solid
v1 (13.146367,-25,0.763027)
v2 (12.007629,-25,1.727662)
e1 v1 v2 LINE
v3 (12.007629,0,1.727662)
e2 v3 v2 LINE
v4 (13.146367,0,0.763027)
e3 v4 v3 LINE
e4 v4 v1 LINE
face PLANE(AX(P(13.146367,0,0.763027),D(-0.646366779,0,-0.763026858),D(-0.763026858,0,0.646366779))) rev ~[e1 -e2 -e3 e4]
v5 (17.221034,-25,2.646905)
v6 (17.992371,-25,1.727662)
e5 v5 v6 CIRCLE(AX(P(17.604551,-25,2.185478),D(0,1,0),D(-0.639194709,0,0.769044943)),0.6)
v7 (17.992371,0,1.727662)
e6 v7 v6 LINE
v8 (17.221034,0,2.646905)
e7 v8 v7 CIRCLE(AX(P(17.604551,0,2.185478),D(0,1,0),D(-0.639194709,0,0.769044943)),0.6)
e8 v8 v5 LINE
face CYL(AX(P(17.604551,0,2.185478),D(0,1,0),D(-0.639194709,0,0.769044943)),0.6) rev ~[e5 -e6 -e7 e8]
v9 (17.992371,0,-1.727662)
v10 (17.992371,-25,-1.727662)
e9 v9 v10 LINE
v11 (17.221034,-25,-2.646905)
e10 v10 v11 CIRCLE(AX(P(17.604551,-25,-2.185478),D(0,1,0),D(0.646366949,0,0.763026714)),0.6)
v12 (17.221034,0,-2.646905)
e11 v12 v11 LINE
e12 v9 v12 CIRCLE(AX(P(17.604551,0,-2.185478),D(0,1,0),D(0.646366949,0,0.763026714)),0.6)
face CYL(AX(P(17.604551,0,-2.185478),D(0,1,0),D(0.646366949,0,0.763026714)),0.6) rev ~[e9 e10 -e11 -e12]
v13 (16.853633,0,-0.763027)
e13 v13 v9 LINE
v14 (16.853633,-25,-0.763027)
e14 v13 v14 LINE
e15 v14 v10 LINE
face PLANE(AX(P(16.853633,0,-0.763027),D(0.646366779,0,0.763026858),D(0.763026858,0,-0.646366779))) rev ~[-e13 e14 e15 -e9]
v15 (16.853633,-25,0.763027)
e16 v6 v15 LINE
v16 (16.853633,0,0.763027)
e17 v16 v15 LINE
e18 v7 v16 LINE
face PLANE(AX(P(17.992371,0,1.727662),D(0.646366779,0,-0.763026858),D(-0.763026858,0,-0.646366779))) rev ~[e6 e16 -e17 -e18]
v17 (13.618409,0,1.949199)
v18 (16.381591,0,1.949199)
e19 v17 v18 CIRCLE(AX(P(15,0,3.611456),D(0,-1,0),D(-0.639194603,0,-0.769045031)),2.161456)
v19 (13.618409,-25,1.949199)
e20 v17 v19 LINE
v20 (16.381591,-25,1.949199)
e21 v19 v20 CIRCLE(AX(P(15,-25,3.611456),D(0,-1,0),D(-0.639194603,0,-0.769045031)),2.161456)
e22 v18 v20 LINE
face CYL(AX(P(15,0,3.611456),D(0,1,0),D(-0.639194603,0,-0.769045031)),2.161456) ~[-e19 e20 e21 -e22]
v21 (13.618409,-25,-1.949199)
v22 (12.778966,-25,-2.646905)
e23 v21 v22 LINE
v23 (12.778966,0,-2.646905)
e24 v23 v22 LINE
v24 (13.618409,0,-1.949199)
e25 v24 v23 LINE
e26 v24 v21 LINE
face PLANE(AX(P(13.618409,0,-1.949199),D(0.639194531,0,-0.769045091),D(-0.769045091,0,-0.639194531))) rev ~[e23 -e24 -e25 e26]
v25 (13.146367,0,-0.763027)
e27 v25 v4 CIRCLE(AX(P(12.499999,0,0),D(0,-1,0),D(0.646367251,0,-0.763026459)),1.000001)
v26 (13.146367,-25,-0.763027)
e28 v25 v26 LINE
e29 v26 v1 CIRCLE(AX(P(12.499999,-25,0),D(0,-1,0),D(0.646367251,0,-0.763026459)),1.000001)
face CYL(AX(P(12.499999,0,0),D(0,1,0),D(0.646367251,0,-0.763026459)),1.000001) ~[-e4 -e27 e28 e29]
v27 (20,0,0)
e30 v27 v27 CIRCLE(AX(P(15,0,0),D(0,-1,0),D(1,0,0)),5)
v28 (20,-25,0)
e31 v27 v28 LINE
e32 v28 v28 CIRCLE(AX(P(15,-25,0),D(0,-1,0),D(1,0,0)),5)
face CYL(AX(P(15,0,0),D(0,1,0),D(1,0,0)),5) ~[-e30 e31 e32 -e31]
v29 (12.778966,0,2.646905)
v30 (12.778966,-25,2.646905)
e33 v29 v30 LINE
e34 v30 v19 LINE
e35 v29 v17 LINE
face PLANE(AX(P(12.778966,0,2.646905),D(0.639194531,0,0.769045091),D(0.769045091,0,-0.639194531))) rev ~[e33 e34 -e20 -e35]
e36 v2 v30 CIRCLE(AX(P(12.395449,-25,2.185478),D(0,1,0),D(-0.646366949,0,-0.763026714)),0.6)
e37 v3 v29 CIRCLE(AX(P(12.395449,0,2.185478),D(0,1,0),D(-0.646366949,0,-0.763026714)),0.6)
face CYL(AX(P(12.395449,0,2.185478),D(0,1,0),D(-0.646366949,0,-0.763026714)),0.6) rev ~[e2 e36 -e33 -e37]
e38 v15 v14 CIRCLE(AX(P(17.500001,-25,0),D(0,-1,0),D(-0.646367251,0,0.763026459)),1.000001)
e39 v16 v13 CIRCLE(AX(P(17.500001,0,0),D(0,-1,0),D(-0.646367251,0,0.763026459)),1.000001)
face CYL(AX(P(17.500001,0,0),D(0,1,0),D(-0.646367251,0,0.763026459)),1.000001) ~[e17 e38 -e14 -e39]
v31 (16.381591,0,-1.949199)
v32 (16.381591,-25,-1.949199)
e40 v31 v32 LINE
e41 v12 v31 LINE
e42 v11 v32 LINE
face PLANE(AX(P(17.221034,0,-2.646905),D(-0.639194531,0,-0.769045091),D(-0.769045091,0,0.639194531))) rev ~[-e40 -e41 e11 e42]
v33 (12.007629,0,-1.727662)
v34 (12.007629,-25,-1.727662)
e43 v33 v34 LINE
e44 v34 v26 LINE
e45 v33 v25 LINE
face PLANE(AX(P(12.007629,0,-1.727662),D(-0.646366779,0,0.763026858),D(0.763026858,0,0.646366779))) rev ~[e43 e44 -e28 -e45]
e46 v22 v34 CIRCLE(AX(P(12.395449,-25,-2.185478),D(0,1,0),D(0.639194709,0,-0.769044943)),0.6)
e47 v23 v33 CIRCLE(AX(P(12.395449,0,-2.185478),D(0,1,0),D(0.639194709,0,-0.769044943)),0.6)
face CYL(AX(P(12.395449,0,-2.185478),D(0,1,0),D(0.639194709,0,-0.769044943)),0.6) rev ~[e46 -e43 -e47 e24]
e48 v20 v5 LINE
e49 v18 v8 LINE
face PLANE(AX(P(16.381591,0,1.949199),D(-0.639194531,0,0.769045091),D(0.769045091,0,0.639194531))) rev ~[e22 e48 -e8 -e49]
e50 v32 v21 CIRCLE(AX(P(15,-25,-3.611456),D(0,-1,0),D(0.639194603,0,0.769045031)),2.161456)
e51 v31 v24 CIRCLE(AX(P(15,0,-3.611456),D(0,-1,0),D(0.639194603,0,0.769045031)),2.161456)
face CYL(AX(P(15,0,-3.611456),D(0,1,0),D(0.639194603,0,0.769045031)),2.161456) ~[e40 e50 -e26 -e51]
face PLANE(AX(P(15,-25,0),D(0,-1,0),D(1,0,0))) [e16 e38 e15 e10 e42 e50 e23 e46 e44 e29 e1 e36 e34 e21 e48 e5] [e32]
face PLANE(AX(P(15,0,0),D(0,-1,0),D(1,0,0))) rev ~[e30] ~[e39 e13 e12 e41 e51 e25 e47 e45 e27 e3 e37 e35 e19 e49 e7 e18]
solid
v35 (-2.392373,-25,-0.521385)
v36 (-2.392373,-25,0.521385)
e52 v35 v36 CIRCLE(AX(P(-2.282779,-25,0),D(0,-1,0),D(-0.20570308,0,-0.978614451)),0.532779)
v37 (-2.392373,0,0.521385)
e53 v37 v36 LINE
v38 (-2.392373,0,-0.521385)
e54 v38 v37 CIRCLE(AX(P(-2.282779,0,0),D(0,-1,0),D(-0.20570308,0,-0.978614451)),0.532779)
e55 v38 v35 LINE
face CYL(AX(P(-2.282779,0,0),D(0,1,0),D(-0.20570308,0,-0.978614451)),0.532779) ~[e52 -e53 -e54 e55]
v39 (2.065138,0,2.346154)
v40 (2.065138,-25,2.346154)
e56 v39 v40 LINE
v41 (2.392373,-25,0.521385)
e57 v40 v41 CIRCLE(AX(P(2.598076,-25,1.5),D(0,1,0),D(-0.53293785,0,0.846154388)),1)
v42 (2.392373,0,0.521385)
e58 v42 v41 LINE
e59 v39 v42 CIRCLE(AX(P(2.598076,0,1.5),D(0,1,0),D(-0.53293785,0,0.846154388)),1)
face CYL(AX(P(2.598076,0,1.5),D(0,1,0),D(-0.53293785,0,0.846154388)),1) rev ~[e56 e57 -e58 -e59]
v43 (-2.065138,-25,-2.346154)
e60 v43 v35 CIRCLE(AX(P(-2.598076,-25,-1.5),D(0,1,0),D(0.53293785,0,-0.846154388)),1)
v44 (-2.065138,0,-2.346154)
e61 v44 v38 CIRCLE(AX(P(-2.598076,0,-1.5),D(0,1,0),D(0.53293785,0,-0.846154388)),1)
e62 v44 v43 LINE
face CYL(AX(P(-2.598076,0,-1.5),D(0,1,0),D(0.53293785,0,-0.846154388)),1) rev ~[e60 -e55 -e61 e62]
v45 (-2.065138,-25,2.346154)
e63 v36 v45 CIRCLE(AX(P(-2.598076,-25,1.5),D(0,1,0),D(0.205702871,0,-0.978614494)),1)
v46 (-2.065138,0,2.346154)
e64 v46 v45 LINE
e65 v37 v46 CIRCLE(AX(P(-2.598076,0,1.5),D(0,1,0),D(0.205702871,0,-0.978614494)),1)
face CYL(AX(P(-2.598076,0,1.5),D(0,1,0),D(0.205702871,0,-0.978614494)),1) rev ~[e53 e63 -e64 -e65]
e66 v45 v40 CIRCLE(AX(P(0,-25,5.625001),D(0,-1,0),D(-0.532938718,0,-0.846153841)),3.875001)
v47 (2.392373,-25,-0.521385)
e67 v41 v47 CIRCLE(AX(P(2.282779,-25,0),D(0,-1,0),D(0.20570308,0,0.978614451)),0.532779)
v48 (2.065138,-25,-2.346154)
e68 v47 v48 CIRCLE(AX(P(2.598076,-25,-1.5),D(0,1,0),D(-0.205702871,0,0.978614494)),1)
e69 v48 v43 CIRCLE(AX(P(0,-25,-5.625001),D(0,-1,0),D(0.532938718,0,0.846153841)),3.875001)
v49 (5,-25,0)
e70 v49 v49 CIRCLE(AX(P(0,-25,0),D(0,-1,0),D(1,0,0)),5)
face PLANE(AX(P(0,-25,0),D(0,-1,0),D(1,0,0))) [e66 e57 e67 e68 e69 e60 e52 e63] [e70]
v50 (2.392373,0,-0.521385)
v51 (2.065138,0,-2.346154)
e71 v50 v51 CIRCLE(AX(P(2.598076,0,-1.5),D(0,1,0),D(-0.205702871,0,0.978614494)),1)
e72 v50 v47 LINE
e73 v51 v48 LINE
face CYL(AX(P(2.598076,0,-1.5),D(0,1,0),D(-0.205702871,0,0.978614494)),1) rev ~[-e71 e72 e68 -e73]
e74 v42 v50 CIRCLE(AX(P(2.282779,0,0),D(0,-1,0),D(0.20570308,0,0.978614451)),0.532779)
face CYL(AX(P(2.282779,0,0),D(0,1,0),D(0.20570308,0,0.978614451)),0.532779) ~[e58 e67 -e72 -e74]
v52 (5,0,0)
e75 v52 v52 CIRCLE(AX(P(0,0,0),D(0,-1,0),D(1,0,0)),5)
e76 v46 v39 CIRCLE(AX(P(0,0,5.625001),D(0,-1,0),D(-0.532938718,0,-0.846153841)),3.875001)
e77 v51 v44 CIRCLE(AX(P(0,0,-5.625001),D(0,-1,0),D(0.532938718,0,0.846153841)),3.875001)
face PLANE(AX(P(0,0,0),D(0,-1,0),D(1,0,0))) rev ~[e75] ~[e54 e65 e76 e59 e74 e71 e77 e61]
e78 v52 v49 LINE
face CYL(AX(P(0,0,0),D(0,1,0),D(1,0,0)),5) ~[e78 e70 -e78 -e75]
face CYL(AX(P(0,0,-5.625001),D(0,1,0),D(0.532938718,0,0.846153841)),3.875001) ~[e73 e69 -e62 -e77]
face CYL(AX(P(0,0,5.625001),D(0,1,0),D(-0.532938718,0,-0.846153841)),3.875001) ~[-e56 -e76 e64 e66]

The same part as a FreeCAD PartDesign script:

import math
import FreeCAD as App
import Part
import Sketcher
from FreeCAD import Vector
Q = App.Units.Quantity

doc = App.newDocument("Part")
body = doc.addObject("PartDesign::Body", "Body")
body.AllowCompound = True

sketch1 = body.newObject("Sketcher::SketchObject", "Sketch")
sketch1.AttachmentSupport = (doc.getObject("XZ_Plane"), [""])
sketch1.MapMode = "FlatFace"
sketch1.addGeometry([
    Part.Circle(Vector(0, 0, 0), Vector(0, 0, 1), 5),
    Part.ArcOfCircle(Part.Circle(Vector(0, 5.625001, 0), Vector(0, 0, 1), 3.875001), math.radians(-122.204228), math.radians(-57.795772)),
    Part.ArcOfCircle(Part.Circle(Vector(2.598076, 1.5, 0), Vector(0, 0, 1), 1), math.radians(-101.870648), math.radians(122.204169)),
    Part.ArcOfCircle(Part.Circle(Vector(2.282779, 0, 0), Vector(0, 0, 1), 0.532779), math.radians(78.12934), math.radians(281.87066)),
    Part.ArcOfCircle(Part.Circle(Vector(2.598076, -1.5, 0), Vector(0, 0, 1), 1), math.radians(-122.204169), math.radians(101.870648)),
    Part.ArcOfCircle(Part.Circle(Vector(0, -5.625001, 0), Vector(0, 0, 1), 3.875001), math.radians(57.795772), math.radians(122.204228)),
    Part.ArcOfCircle(Part.Circle(Vector(-2.598076, -1.5, 0), Vector(0, 0, 1), 1), math.radians(78.129352), math.radians(302.204169)),
    Part.ArcOfCircle(Part.Circle(Vector(-2.282779, 0, 0), Vector(0, 0, 1), 0.532779), math.radians(-101.87066), math.radians(101.87066)),
    Part.ArcOfCircle(Part.Circle(Vector(-2.598076, 1.5, 0), Vector(0, 0, 1), 1), math.radians(57.795831), math.radians(281.870648)),
    Part.Circle(Vector(15, 0, 0), Vector(0, 0, 1), 5),
    Part.ArcOfCircle(Part.Circle(Vector(15, 3.611456, 0), Vector(0, 0, 1), 2.161456), math.radians(-129.731789), math.radians(-50.268211)),
    Part.LineSegment(Vector(16.381591, 1.949199, 0), Vector(17.221034, 2.646905, 0)),
    Part.ArcOfCircle(Part.Circle(Vector(17.604551, 2.185478, 0), Vector(0, 0, 1), 0.6), math.radians(-49.731758), math.radians(129.731797)),
    Part.LineSegment(Vector(17.992371, 1.727662, 0), Vector(16.853633, 0.763027, 0)),
    Part.ArcOfCircle(Part.Circle(Vector(17.500001, 0, 0), Vector(0, 0, 1), 1.000001), math.radians(130.268265), math.radians(229.731735)),
    Part.LineSegment(Vector(16.853633, -0.763027, 0), Vector(17.992371, -1.727662, 0)),
    Part.ArcOfCircle(Part.Circle(Vector(17.604551, -2.185478, 0), Vector(0, 0, 1), 0.6), math.radians(-129.731797), math.radians(49.731758)),
    Part.LineSegment(Vector(17.221034, -2.646905, 0), Vector(16.381591, -1.949199, 0)),
    Part.ArcOfCircle(Part.Circle(Vector(15, -3.611456, 0), Vector(0, 0, 1), 2.161456), math.radians(50.268211), math.radians(129.731789)),
    Part.LineSegment(Vector(13.618409, -1.949199, 0), Vector(12.778966, -2.646905, 0)),
    Part.ArcOfCircle(Part.Circle(Vector(12.395449, -2.185478, 0), Vector(0, 0, 1), 0.6), math.radians(130.268242), math.radians(309.731797)),
    Part.LineSegment(Vector(12.007629, -1.727662, 0), Vector(13.146367, -0.763027, 0)),
    Part.ArcOfCircle(Part.Circle(Vector(12.499999, 0, 0), Vector(0, 0, 1), 1.000001), math.radians(-49.731735), math.radians(49.731735)),
    Part.LineSegment(Vector(13.146367, 0.763027, 0), Vector(12.007629, 1.727662, 0)),
    Part.ArcOfCircle(Part.Circle(Vector(12.395449, 2.185478, 0), Vector(0, 0, 1), 0.6), math.radians(50.268203), math.radians(229.731758)),
    Part.LineSegment(Vector(12.778966, 2.646905, 0), Vector(13.618409, 1.949199, 0)),
], False)
sketch1.addConstraint([
    Sketcher.Constraint("Tangent", 1, 2, 2, 2),
    Sketcher.Constraint("Tangent", 2, 1, 3, 1),
    Sketcher.Constraint("Tangent", 3, 2, 4, 2),
    Sketcher.Constraint("Tangent", 4, 1, 5, 1),
    Sketcher.Constraint("Tangent", 5, 2, 6, 2),
    Sketcher.Constraint("Tangent", 6, 1, 7, 1),
    Sketcher.Constraint("Tangent", 7, 2, 8, 2),
    Sketcher.Constraint("Tangent", 8, 1, 1, 1),
    Sketcher.Constraint("Tangent", 10, 2, 11, 1),
    Sketcher.Constraint("Tangent", 11, 2, 12, 2),
    Sketcher.Constraint("Tangent", 12, 1, 13, 1),
    Sketcher.Constraint("Tangent", 13, 2, 14, 1),
    Sketcher.Constraint("Tangent", 14, 2, 15, 1),
    Sketcher.Constraint("Tangent", 15, 2, 16, 2),
    Sketcher.Constraint("Tangent", 16, 1, 17, 1),
    Sketcher.Constraint("Tangent", 17, 2, 18, 1),
    Sketcher.Constraint("Tangent", 18, 2, 19, 1),
    Sketcher.Constraint("Tangent", 19, 2, 20, 2),
    Sketcher.Constraint("Tangent", 20, 1, 21, 1),
    Sketcher.Constraint("Tangent", 21, 2, 22, 1),
    Sketcher.Constraint("Tangent", 22, 2, 23, 1),
    Sketcher.Constraint("Tangent", 23, 2, 24, 2),
    Sketcher.Constraint("Tangent", 24, 1, 25, 1),
    Sketcher.Constraint("Tangent", 25, 2, 10, 1),
    Sketcher.Constraint("Coincident", 0, 3, -1, 1),
    Sketcher.Constraint("Equal", 2, 4),
    Sketcher.Constraint("Equal", 1, 5),
    Sketcher.Constraint("Equal", 4, 6),
    Sketcher.Constraint("Equal", 3, 7),
    Sketcher.Constraint("Equal", 6, 8),
    Sketcher.Constraint("Equal", 0, 9),
    Sketcher.Constraint("Equal", 8, 14),
    Sketcher.Constraint("Equal", 12, 16),
    Sketcher.Constraint("Equal", 10, 18),
    Sketcher.Constraint("Equal", 16, 20),
    Sketcher.Constraint("Equal", 14, 22),
    Sketcher.Constraint("Equal", 20, 24),
    Sketcher.Constraint("Symmetric", 1, 3, 5, 3, -1, 1),
    Sketcher.Constraint("Symmetric", 3, 3, 7, 3, -1, 1),
    Sketcher.Constraint("Symmetric", 4, 3, 6, 3, -2),
    Sketcher.Constraint("Symmetric", 12, 3, 16, 3, -1),
    Sketcher.Constraint("Symmetric", 10, 3, 18, 3, -1),
    Sketcher.Constraint("Symmetric", 20, 3, 24, 3, -1),
    Sketcher.Constraint("PointOnObject", 9, 3, -1),
    Sketcher.Constraint("PointOnObject", 14, 3, -1),
    Sketcher.Constraint("PointOnObject", 22, 3, -1),
    Sketcher.Constraint("Parallel", 11, 19),
    Sketcher.Constraint("Parallel", 13, 21),
    Sketcher.Constraint("Horizontal", 16, 3, 20, 3),
    Sketcher.Constraint("Vertical", 9, 3, 10, 3),
    Sketcher.Constraint("Diameter", 0, Q("10 mm")),
    Sketcher.Constraint("Radius", 2, Q("1 mm")),
    Sketcher.Constraint("Radius", 12, Q("0.6 mm")),
    Sketcher.Constraint("DistanceX", -1, 1, 9, 3, Q("15 mm")),
    Sketcher.Constraint("Radius", 1, Q("3.875001 mm")),
    Sketcher.Constraint("DistanceY", 4, 3, 2, 3, Q("2.999999 mm")),
    Sketcher.Constraint("DistanceX", 22, 3, 14, 3, Q("5.000001 mm")),
    Sketcher.Constraint("Radius", 3, Q("0.532779 mm")),
    Sketcher.Constraint("DistanceY", 5, 3, 1, 3, Q("11.250002 mm")),
    Sketcher.Constraint("Radius", 10, Q("2.161456 mm")),
    Sketcher.Constraint("DistanceY", -1, 1, 10, 2, Q("1.949199 mm")),
    Sketcher.Constraint("DistanceX", 20, 3, 16, 3, Q("5.209102 mm")),
    Sketcher.Constraint("DistanceX", 13, 2, 11, 2, Q("0.367401 mm")),
])
pad1 = body.newObject("PartDesign::Pad", "Pad")
pad1.Profile = sketch1
pad1.Length = 25

doc.recompute()
